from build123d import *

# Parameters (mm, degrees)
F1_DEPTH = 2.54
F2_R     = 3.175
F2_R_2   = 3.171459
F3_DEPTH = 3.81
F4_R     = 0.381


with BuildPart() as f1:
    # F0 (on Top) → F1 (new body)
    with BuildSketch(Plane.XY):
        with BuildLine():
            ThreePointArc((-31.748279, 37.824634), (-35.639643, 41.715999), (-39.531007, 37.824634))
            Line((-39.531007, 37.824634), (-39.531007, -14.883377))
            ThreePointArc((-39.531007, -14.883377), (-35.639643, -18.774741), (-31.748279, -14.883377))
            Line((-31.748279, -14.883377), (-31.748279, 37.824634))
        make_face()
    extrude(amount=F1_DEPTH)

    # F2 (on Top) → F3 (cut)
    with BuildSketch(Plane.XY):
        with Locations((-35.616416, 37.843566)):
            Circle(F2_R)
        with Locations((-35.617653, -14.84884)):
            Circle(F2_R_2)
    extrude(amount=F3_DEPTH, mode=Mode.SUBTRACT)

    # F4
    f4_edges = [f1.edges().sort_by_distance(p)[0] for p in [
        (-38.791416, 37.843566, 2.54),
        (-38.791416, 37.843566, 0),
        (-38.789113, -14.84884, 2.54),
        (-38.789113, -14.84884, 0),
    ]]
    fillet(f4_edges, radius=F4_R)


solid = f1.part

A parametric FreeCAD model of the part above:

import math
import FreeCAD as App
import Part
import Sketcher
Q = App.Units.Quantity


def edges_at(feature, points):
    """Names of the edges that pass closest to the given points."""
    edges = feature.Shape.Edges
    near = lambda p: min(range(len(edges)), key=lambda i: edges[i].distToShape(Part.Vertex(*p))[0])
    return sorted({f"Edge{near(p) + 1}" for p in points})

doc = App.newDocument("Part")
body = doc.addObject("PartDesign::Body", "Body")

# Sketch on XY plane
sketch1 = doc.addObject("Sketcher::SketchObject", "Sketch")
body.addObject(sketch1)
sketch1.AttachmentSupport = (doc.XY_Plane, [""])
sketch1.MapMode = "FlatFace"
sketch1.addGeometry(Part.ArcOfCircle(Part.Circle(App.Vector(-35.639643, 37.824635, 0), App.Vector(0, 0, 1), 3.891364), math.radians(-0.000015), math.radians(180.000015)), False)
sketch1.addGeometry(Part.LineSegment(App.Vector(-39.531007, 37.824634, 0), App.Vector(-39.531007, -14.883377, 0)), False)
sketch1.addGeometry(Part.ArcOfCircle(Part.Circle(App.Vector(-35.639643, -14.883377, 0), App.Vector(0, 0, 1), 3.891364), math.radians(180), math.radians(360)), False)
sketch1.addGeometry(Part.LineSegment(App.Vector(-31.748279, -14.883377, 0), App.Vector(-31.748279, 37.824634, 0)), False)
sketch1.addConstraint(Sketcher.Constraint("Tangent", 0, 2, 1, 1))
sketch1.addConstraint(Sketcher.Constraint("Tangent", 1, 2, 2, 1))
sketch1.addConstraint(Sketcher.Constraint("Tangent", 2, 2, 3, 1))
sketch1.addConstraint(Sketcher.Constraint("Tangent", 3, 2, 0, 1))
sketch1.addConstraint(Sketcher.Constraint("Vertical", 1))
sketch1.addConstraint(Sketcher.Constraint("Vertical", 3))
sketch1.addConstraint(Sketcher.Constraint("Radius", 0, 3.891364))
sketch1.addConstraint(Sketcher.Constraint("DistanceY", 1, 2, 1, 1, 52.708011))
sketch1.addConstraint(Sketcher.Constraint("DistanceX", 2, 2, -1, 1, 31.748279))
sketch1.addConstraint(Sketcher.Constraint("DistanceY", -1, 1, 0, 3, 37.824635))
pad1 = doc.addObject("PartDesign::Pad", "Pad")
body.addObject(pad1)
pad1.Profile = sketch1
pad1.Length = Q("0.1 in")

# Sketch on XY plane
sketch2 = doc.addObject("Sketcher::SketchObject", "Sketch001")
body.addObject(sketch2)
sketch2.AttachmentSupport = (doc.XY_Plane, [""])
sketch2.MapMode = "FlatFace"
sketch2.addGeometry(Part.Circle(App.Vector(-35.616416, 37.843566, 0), App.Vector(0, 0, 1), 3.175), False)
sketch2.addGeometry(Part.Circle(App.Vector(-35.617653, -14.84884, 0), App.Vector(0, 0, 1), 3.171459), False)
sketch2.addConstraint(Sketcher.Constraint("Diameter", 0, Q("0.25 in")))
sketch2.addConstraint(Sketcher.Constraint("Diameter", 1, 6.342918))
sketch2.addConstraint(Sketcher.Constraint("DistanceY", 1, 3, -1, 1, Q("0.5846 in")))
sketch2.addConstraint(Sketcher.Constraint("DistanceX", 0, 3, -1, 1, 35.616416))
sketch2.addConstraint(Sketcher.Constraint("DistanceY", -1, 1, 0, 3, 37.843566))
sketch2.addConstraint(Sketcher.Constraint("DistanceX", 1, 3, -1, 1, 35.617653))
pocket1 = doc.addObject("PartDesign::Pocket", "Pocket")
body.addObject(pocket1)
pocket1.Profile = sketch2
pocket1.Length = Q("0.15 in")
pocket1.Reversed = True
doc.recompute()

fillet = doc.addObject("PartDesign::Fillet", "Fillet")
body.addObject(fillet)
fillet.Base = (pocket1, edges_at(pocket1, [
    (-38.791, 37.844, 2.54),
    (-38.791, 37.844, 0),
    (-38.789, -14.849, 2.54),
    (-38.789, -14.849, 0),
]))
fillet.Radius = Q("0.015 in")

doc.recompute()
